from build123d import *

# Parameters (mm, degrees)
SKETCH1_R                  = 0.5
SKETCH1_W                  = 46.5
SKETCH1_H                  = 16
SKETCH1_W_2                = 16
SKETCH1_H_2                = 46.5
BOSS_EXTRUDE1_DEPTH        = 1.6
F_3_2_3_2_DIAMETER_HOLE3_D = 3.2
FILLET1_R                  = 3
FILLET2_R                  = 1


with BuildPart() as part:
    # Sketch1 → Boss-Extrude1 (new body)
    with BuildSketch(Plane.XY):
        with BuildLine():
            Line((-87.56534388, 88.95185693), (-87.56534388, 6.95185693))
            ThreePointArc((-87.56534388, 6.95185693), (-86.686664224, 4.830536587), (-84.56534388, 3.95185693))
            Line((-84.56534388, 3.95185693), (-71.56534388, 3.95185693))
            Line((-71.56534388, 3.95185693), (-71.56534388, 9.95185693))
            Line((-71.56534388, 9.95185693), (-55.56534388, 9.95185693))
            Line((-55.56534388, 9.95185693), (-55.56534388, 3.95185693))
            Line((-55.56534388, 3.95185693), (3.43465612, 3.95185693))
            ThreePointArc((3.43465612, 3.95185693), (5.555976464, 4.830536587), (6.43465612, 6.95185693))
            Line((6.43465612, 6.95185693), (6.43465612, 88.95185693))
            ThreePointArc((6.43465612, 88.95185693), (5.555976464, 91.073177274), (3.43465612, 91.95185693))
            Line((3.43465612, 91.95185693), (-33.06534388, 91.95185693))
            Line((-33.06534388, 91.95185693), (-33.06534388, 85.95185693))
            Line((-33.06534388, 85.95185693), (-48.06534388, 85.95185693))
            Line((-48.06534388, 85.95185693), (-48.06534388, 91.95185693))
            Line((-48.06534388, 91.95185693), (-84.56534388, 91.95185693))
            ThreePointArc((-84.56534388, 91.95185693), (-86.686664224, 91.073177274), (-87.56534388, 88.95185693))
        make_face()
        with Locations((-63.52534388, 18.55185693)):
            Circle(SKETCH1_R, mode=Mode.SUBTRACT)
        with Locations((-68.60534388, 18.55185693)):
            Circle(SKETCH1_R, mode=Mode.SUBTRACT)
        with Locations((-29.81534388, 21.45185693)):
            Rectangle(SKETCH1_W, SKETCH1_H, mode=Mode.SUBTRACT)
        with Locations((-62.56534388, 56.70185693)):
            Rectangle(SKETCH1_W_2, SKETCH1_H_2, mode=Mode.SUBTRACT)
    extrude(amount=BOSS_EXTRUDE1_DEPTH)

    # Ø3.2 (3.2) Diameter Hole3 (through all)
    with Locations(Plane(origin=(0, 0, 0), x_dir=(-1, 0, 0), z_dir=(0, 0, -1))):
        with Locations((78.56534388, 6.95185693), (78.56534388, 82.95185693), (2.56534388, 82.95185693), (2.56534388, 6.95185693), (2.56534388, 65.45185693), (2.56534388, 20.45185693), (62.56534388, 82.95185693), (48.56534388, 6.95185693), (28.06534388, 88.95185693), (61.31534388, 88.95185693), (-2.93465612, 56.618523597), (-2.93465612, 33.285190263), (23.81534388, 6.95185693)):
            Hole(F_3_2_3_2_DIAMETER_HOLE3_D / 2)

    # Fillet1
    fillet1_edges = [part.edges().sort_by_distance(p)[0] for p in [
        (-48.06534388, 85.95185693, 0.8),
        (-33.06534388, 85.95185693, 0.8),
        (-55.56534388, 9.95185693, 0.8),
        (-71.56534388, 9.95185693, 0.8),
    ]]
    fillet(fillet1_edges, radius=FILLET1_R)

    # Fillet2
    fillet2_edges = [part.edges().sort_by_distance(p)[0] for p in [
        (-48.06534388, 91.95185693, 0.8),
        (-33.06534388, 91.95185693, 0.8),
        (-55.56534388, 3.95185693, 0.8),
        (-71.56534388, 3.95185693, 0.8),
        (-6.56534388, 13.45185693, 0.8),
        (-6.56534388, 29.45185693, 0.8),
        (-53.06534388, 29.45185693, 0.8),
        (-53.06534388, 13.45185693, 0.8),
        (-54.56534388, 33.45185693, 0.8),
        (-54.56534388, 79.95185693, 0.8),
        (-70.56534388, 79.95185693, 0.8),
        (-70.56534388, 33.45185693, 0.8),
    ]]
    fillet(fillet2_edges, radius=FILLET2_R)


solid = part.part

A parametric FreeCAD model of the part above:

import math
import FreeCAD as App
import Part
import Sketcher


def edges_at(feature, points):
    """Names of the edges that pass closest to the given points."""
    edges = feature.Shape.Edges
    near = lambda p: min(range(len(edges)), key=lambda i: edges[i].distToShape(Part.Vertex(*p))[0])
    return sorted({f"Edge{near(p) + 1}" for p in points})

doc = App.newDocument("Part")
body = doc.addObject("PartDesign::Body", "Body")

# Sketch on XY plane
sketch1 = body.newObject("Sketcher::SketchObject", "Sketch")
sketch1.AttachmentSupport = (doc.getObject("XY_Plane"), [""])
sketch1.MapMode = "FlatFace"
sketch1.addGeometry([
    Part.LineSegment(App.Vector(-87.6, 89, 0), App.Vector(-87.6, 7, 0)),  # 0
    Part.ArcOfCircle(Part.Circle(App.Vector(-84.6, 7, 0), App.Vector(0, 0, 1), 3), math.radians(180), math.radians(270)),  # 1
    Part.LineSegment(App.Vector(-84.6, 4, 0), App.Vector(-71.6, 4, 0)),  # 2
    Part.LineSegment(App.Vector(-71.6, 4, 0), App.Vector(-71.6, 10, 0)),  # 3
    Part.LineSegment(App.Vector(-71.6, 10, 0), App.Vector(-55.6, 10, 0)),  # 4
    Part.LineSegment(App.Vector(-55.6, 10, 0), App.Vector(-55.6, 4, 0)),  # 5
    Part.LineSegment(App.Vector(-55.6, 4, 0), App.Vector(3.4, 4, 0)),  # 6
    Part.ArcOfCircle(Part.Circle(App.Vector(3.4, 7, 0), App.Vector(0, 0, 1), 3), math.radians(-90), math.radians(0)),  # 7
    Part.LineSegment(App.Vector(6.4, 7, 0), App.Vector(6.4, 89, 0)),  # 8
    Part.ArcOfCircle(Part.Circle(App.Vector(3.4, 89, 0), App.Vector(0, 0, 1), 3), math.radians(0), math.radians(90)),  # 9
    Part.LineSegment(App.Vector(3.4, 92, 0), App.Vector(-33.1, 92, 0)),  # 10
    Part.LineSegment(App.Vector(-33.1, 92, 0), App.Vector(-33.1, 86, 0)),  # 11
    Part.LineSegment(App.Vector(-33.1, 86, 0), App.Vector(-48.1, 86, 0)),  # 12
    Part.LineSegment(App.Vector(-48.1, 86, 0), App.Vector(-48.1, 92, 0)),  # 13
    Part.LineSegment(App.Vector(-48.1, 92, 0), App.Vector(-84.6, 92, 0)),  # 14
    Part.ArcOfCircle(Part.Circle(App.Vector(-84.6, 89, 0), App.Vector(0, 0, 1), 3), math.radians(90), math.radians(180)),  # 15
    Part.Circle(App.Vector(-68.6, 18.6, 0), App.Vector(0, 0, 1), 0.5),  # 16
    Part.Circle(App.Vector(-63.5, 18.6, 0), App.Vector(0, 0, 1), 0.5),  # 17
    Part.LineSegment(App.Vector(-6.6, 13.5, 0), App.Vector(-53.1, 13.5, 0)),  # 18
    Part.LineSegment(App.Vector(-53.1, 13.5, 0), App.Vector(-53.1, 29.5, 0)),  # 19
    Part.LineSegment(App.Vector(-53.1, 29.5, 0), App.Vector(-6.6, 29.5, 0)),  # 20
    Part.LineSegment(App.Vector(-6.6, 29.5, 0), App.Vector(-6.6, 13.5, 0)),  # 21
    Part.LineSegment(App.Vector(-54.6, 33.5, 0), App.Vector(-70.6, 33.5, 0)),  # 22
    Part.LineSegment(App.Vector(-70.6, 33.5, 0), App.Vector(-70.6, 80, 0)),  # 23
    Part.LineSegment(App.Vector(-70.6, 80, 0), App.Vector(-54.6, 80, 0)),  # 24
    Part.LineSegment(App.Vector(-54.6, 80, 0), App.Vector(-54.6, 33.5, 0)),  # 25
], False)
sketch1.addConstraint([
    Sketcher.Constraint("Tangent", 0, 2, 1, 1),
    Sketcher.Constraint("Tangent", 1, 2, 2, 1),
    Sketcher.Constraint("Coincident", 2, 2, 3, 1),
    Sketcher.Constraint("Coincident", 3, 2, 4, 1),
    Sketcher.Constraint("Coincident", 4, 2, 5, 1),
    Sketcher.Constraint("Coincident", 5, 2, 6, 1),
    Sketcher.Constraint("Tangent", 6, 2, 7, 1),
    Sketcher.Constraint("Tangent", 7, 2, 8, 1),
    Sketcher.Constraint("Tangent", 8, 2, 9, 1),
    Sketcher.Constraint("Tangent", 9, 2, 10, 1),
    Sketcher.Constraint("Coincident", 10, 2, 11, 1),
    Sketcher.Constraint("Coincident", 11, 2, 12, 1),
    Sketcher.Constraint("Coincident", 12, 2, 13, 1),
    Sketcher.Constraint("Coincident", 13, 2, 14, 1),
    Sketcher.Constraint("Tangent", 14, 2, 15, 1),
    Sketcher.Constraint("Tangent", 15, 2, 0, 1),
    Sketcher.Constraint("Coincident", 18, 2, 19, 1),
    Sketcher.Constraint("Coincident", 19, 2, 20, 1),
    Sketcher.Constraint("Coincident", 20, 2, 21, 1),
    Sketcher.Constraint("Coincident", 21, 2, 18, 1),
    Sketcher.Constraint("Coincident", 22, 2, 23, 1),
    Sketcher.Constraint("Coincident", 23, 2, 24, 1),
    Sketcher.Constraint("Coincident", 24, 2, 25, 1),
    Sketcher.Constraint("Coincident", 25, 2, 22, 1),
    Sketcher.Constraint("Vertical", 0),
    Sketcher.Constraint("Horizontal", 2),
    Sketcher.Constraint("Vertical", 3),
    Sketcher.Constraint("Horizontal", 4),
    Sketcher.Constraint("Vertical", 5),
    Sketcher.Constraint("Horizontal", 6),
    Sketcher.Constraint("Vertical", 8),
    Sketcher.Constraint("Horizontal", 10),
    Sketcher.Constraint("Vertical", 11),
    Sketcher.Constraint("Horizontal", 12),
    Sketcher.Constraint("Vertical", 13),
    Sketcher.Constraint("Horizontal", 14),
    Sketcher.Constraint("Horizontal", 18),
    Sketcher.Constraint("Vertical", 19),
    Sketcher.Constraint("Horizontal", 20),
    Sketcher.Constraint("Vertical", 21),
    Sketcher.Constraint("Horizontal", 22),
    Sketcher.Constraint("Vertical", 23),
    Sketcher.Constraint("Horizontal", 24),
    Sketcher.Constraint("Vertical", 25),
    Sketcher.Constraint("Equal", 1, 7),
    Sketcher.Constraint("Equal", 7, 9),
    Sketcher.Constraint("Equal", 9, 15),
    Sketcher.Constraint("Equal", 16, 17),
    Sketcher.Constraint("Horizontal", 1, 3, 7, 3),
    Sketcher.Constraint("Horizontal", 9, 3, 15, 3),
    Sketcher.Constraint("Horizontal", 16, 3, 17, 3),
    Sketcher.Constraint("Equal", 10, 14),
    Sketcher.Constraint("Equal", 4, 22),
    Sketcher.Constraint("Equal", 5, 11),
    Sketcher.Constraint("Equal", 24, 19),
    Sketcher.Constraint("Equal", 20, 23),
    Sketcher.Constraint("Diameter", 16, 1.0),
    Sketcher.Constraint("Radius", 1, 3.0),
    Sketcher.Constraint("DistanceX", 2, 1, 2, 2, 13.0),
    Sketcher.Constraint("DistanceX", 4, 1, 4, 2, 16.0),
    Sketcher.Constraint("DistanceX", 6, 1, 6, 2, 59.0),
    Sketcher.Constraint("DistanceX", 12, 2, 12, 1, 15.0),
    Sketcher.Constraint("DistanceY", 0, 2, 0, 1, 82.0),
    Sketcher.Constraint("DistanceY", 3, 1, 3, 2, 6.0),
    Sketcher.Constraint("DistanceX", 18, 2, 18, 1, 46.5),
    Sketcher.Constraint("DistanceX", 20, 2, 7, 3, 10.0),
    Sketcher.Constraint("DistanceY", 19, 2, 22, 2, 4.0),
    Sketcher.Constraint("DistanceX", 3, 2, 22, 2, 1.0),
    Sketcher.Constraint("DistanceY", 23, 2, 15, 3, 9.0),
    Sketcher.Constraint("DistanceY", 1, 3, 16, 3, 11.6),
    Sketcher.Constraint("DistanceX", 1, 3, 16, 3, 15.96),
    Sketcher.Constraint("DistanceX", 16, 3, 17, 3, 5.08),
    Sketcher.Constraint("DistanceX", 1, 3, -1, 1, 84.565344),
    Sketcher.Constraint("DistanceY", -1, 1, 1, 3, 6.951857),
])
pad1 = body.newObject("PartDesign::Pad", "Pad")
pad1.Profile = sketch1
pad1.Length = 1.6

# Sketch on XY plane
sketch2 = body.newObject("Sketcher::SketchObject", "Sketch001")
sketch2.AttachmentSupport = (doc.getObject("XY_Plane"), [""])
sketch2.MapMode = "FlatFace"
sketch2.addGeometry([
    Part.Circle(App.Vector(-78.6, 7, 0), App.Vector(0, 0, 1), 1.6),  # 0
    Part.Circle(App.Vector(-78.6, 83, 0), App.Vector(0, 0, 1), 1.6),  # 1
    Part.Circle(App.Vector(-2.6, 83, 0), App.Vector(0, 0, 1), 1.6),  # 2
    Part.Circle(App.Vector(-2.6, 7, 0), App.Vector(0, 0, 1), 1.6),  # 3
    Part.Circle(App.Vector(-2.6, 65.5, 0), App.Vector(0, 0, 1), 1.6),  # 4
    Part.Circle(App.Vector(-2.6, 20.5, 0), App.Vector(0, 0, 1), 1.6),  # 5
    Part.Circle(App.Vector(-62.6, 83, 0), App.Vector(0, 0, 1), 1.6),  # 6
    Part.Circle(App.Vector(-48.6, 7, 0), App.Vector(0, 0, 1), 1.6),  # 7
    Part.Circle(App.Vector(-28.1, 89, 0), App.Vector(0, 0, 1), 1.6),  # 8
    Part.Circle(App.Vector(-61.3, 89, 0), App.Vector(0, 0, 1), 1.6),  # 9
    Part.Circle(App.Vector(2.9, 56.6, 0), App.Vector(0, 0, 1), 1.6),  # 10
    Part.Circle(App.Vector(2.9, 33.3, 0), App.Vector(0, 0, 1), 1.6),  # 11
    Part.Circle(App.Vector(-23.8, 7, 0), App.Vector(0, 0, 1), 1.6),  # 12
], False)
sketch2.addConstraint([
    Sketcher.Constraint("Equal", 0, 1),
    Sketcher.Constraint("Equal", 1, 2),
    Sketcher.Constraint("Equal", 2, 3),
    Sketcher.Constraint("Equal", 3, 4),
    Sketcher.Constraint("Equal", 4, 5),
    Sketcher.Constraint("Equal", 5, 6),
    Sketcher.Constraint("Equal", 6, 7),
    Sketcher.Constraint("Equal", 7, 8),
    Sketcher.Constraint("Equal", 8, 9),
    Sketcher.Constraint("Equal", 9, 10),
    Sketcher.Constraint("Equal", 10, 11),
    Sketcher.Constraint("Equal", 11, 12),
    Sketcher.Constraint("Horizontal", 1, 3, 2, 3),
    Sketcher.Constraint("Horizontal", 0, 3, 3, 3),
    Sketcher.Constraint("Horizontal", 2, 3, 6, 3),
    Sketcher.Constraint("Horizontal", 3, 3, 7, 3),
    Sketcher.Constraint("Horizontal", 8, 3, 9, 3),
    Sketcher.Constraint("Horizontal", 7, 3, 12, 3),
    Sketcher.Constraint("Vertical", 0, 3, 1, 3),
    Sketcher.Constraint("Vertical", 2, 3, 3, 3),
    Sketcher.Constraint("Vertical", 3, 3, 4, 3),
    Sketcher.Constraint("Vertical", 4, 3, 5, 3),
    Sketcher.Constraint("Vertical", 10, 3, 11, 3),
    Sketcher.Constraint("Diameter", 0, 3.2),
    Sketcher.Constraint("DistanceY", 0, 3, 1, 3, 76.0),
    Sketcher.Constraint("DistanceX", 1, 3, 2, 3, 76.0),
    Sketcher.Constraint("DistanceY", 5, 3, 4, 3, 45.0),
    Sketcher.Constraint("DistanceX", 1, 3, 6, 3, 16.0),
    Sketcher.Constraint("DistanceX", 0, 3, 7, 3, 30.0),
    Sketcher.Constraint("DistanceY", 2, 3, 8, 3, 6.0),
    Sketcher.Constraint("DistanceX", 8, 3, 10, 3, 31.0),
    Sketcher.Constraint("DistanceY", 4, 3, 2, 3, 17.5),
    Sketcher.Constraint("DistanceX", 8, 3, 2, 3, 25.5),
    Sketcher.Constraint("DistanceX", 6, 3, 9, 3, 1.25),
    Sketcher.Constraint("DistanceX", 12, 3, 3, 3, 21.25),
    Sketcher.Constraint("DistanceY", -1, 1, 11, 3, 33.28519),
    Sketcher.Constraint("DistanceX", 0, 3, -1, 1, 78.565344),
    Sketcher.Constraint("DistanceY", -1, 1, 0, 3, 6.951857),
    Sketcher.Constraint("DistanceY", -1, 1, 10, 3, 56.618524),
])
doc.recompute()
hole = body.newObject("PartDesign::Hole", "Hole")
hole.Profile = sketch2
hole.ThreadType = "None"
hole.Diameter = 3.2
hole.DepthType = "ThroughAll"
hole.Reversed = True
doc.recompute()

fillet = body.newObject("PartDesign::Fillet", "Fillet")
fillet.Base = (hole, edges_at(hole, [
    (-48.065, 85.952, 0.8),
    (-33.065, 85.952, 0.8),
    (-55.565, 9.952, 0.8),
    (-71.565, 9.952, 0.8),
]))
fillet.Radius = 3
doc.recompute()

fillet2 = body.newObject("PartDesign::Fillet", "Fillet001")
fillet2.Base = (fillet, edges_at(fillet, [
    (-48.065, 91.952, 0.8),
    (-33.065, 91.952, 0.8),
    (-55.565, 3.952, 0.8),
    (-71.565, 3.952, 0.8),
    (-6.565, 13.452, 0.8),
    (-6.565, 29.452, 0.8),
    (-53.065, 29.452, 0.8),
    (-53.065, 13.452, 0.8),
    (-54.565, 33.452, 0.8),
    (-54.565, 79.952, 0.8),
    (-70.565, 79.952, 0.8),
    (-70.565, 33.452, 0.8),
]))
fillet2.Radius = 1

doc.recompute()
